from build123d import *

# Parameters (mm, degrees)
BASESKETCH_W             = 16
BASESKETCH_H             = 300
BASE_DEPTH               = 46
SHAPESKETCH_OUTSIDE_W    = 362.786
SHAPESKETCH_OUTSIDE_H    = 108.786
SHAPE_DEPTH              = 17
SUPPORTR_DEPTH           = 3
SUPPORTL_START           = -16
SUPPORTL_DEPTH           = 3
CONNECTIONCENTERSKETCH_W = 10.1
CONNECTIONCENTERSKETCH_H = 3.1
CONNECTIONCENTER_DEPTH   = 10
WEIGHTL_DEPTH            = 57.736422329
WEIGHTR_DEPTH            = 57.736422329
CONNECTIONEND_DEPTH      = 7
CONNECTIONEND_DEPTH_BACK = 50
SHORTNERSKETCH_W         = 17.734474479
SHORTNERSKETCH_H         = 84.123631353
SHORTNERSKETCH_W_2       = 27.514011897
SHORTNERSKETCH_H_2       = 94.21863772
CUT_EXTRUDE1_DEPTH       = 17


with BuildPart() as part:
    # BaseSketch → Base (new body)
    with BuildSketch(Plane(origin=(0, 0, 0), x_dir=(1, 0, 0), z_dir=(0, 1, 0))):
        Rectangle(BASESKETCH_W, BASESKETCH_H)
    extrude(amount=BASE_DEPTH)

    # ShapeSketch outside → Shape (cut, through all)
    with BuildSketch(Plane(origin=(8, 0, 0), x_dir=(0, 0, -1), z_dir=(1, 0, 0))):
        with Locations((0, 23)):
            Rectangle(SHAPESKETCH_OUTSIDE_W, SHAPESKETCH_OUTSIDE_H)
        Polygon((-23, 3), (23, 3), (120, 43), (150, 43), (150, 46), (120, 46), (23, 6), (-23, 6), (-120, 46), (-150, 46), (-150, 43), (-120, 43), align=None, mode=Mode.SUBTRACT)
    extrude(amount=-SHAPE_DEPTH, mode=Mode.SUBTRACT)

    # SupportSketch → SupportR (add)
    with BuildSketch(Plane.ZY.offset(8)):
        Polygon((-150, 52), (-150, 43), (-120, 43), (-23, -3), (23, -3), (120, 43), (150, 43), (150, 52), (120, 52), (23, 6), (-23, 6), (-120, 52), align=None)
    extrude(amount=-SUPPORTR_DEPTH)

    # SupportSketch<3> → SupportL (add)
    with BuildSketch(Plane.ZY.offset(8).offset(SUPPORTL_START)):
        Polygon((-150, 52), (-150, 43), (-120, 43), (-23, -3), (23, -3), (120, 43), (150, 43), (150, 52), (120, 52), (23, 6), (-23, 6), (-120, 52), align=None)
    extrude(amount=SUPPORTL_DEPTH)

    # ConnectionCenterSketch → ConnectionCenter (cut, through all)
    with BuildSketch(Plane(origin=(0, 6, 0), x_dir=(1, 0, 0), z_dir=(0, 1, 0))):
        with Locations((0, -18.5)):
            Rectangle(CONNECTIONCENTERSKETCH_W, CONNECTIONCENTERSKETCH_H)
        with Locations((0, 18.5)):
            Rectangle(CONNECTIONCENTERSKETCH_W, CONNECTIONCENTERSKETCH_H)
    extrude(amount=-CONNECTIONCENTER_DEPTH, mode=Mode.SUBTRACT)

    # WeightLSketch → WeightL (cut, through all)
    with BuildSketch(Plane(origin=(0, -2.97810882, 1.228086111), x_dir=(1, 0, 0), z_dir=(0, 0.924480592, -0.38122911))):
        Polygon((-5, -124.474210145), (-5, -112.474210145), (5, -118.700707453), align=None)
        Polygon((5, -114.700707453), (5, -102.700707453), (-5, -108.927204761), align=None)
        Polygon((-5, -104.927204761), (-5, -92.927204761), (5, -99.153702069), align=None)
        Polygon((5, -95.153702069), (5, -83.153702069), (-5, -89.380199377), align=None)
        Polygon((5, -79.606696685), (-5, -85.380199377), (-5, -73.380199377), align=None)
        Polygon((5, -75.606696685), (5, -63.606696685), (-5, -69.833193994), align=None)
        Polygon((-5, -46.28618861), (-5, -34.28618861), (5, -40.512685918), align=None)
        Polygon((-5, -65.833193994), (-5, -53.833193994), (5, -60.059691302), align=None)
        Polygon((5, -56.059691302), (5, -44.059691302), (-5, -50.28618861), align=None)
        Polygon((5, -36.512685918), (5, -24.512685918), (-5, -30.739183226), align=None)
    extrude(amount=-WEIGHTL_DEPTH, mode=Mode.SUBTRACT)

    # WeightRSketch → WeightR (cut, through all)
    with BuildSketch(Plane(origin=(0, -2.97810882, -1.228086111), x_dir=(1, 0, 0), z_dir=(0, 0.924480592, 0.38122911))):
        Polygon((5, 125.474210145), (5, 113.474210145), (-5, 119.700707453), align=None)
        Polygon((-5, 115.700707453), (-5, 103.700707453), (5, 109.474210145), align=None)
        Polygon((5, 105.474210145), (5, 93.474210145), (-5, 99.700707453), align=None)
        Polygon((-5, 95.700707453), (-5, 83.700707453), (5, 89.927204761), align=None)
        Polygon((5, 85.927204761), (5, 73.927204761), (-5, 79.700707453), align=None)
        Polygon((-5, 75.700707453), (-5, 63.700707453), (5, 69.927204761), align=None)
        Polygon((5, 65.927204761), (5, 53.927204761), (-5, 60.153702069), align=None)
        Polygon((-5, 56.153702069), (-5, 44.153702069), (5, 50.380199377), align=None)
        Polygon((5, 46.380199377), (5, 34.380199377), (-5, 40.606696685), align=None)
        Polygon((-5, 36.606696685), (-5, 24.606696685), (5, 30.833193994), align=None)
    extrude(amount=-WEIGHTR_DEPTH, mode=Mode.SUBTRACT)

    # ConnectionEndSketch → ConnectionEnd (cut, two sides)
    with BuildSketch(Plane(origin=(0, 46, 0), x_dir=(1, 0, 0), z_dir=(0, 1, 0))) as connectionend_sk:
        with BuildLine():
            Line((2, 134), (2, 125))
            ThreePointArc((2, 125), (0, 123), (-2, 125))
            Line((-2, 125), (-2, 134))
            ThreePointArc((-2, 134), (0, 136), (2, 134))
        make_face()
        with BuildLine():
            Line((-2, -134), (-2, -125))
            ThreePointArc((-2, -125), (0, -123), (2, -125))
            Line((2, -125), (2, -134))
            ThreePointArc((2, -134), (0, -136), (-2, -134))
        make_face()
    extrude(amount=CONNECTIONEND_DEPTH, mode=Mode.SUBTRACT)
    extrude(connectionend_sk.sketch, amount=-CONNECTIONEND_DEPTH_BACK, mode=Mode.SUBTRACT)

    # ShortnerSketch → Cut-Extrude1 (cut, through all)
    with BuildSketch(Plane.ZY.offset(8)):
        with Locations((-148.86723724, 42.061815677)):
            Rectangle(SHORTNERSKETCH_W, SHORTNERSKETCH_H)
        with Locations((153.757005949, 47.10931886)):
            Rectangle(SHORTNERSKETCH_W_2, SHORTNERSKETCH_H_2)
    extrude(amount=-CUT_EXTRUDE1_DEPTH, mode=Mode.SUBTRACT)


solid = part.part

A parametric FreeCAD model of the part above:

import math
import FreeCAD as App
import Part
import Sketcher
Q = App.Units.Quantity


def add_polygon(sketch, points):
    """Adds a closed chain of lines whose ends are joined by coincident constraints."""
    first, n = sketch.GeometryCount, len(points)
    for a, b in zip(points, points[1:] + points[:1]):
        sketch.addGeometry(Part.LineSegment(App.Vector(*a, 0), App.Vector(*b, 0)), False)
    for i in range(n):
        sketch.addConstraint(Sketcher.Constraint("Coincident", first + i, 2, first + (i + 1) % n, 1))

doc = App.newDocument("Part")
body = doc.addObject("PartDesign::Body", "Body")

# Sketch on XZ plane
sketch1 = body.newObject("Sketcher::SketchObject", "Sketch")
sketch1.AttachmentSupport = (doc.getObject("XZ_Plane"), [""])
sketch1.MapMode = "FlatFace"
add_polygon(sketch1, [(-8, -150), (-8, 150), (8, 150), (8, -150)])  # lines 0-3
sketch1.addConstraint([
    Sketcher.Constraint("Vertical", 0),
    Sketcher.Constraint("Horizontal", 1),
    Sketcher.Constraint("Vertical", 2),
    Sketcher.Constraint("Horizontal", 3),
    Sketcher.Constraint("Symmetric", 0, 2, 2, 2, -1, 1),
    Sketcher.Constraint("DistanceX", 1, 1, 1, 2, 16.0),
    Sketcher.Constraint("DistanceY", 0, 1, 0, 2, 300.0),
])
pad1 = body.newObject("PartDesign::Pad", "Pad")
pad1.Profile = sketch1
pad1.Length = 46
pad1.Reversed = True

# Sketch on YZ plane
sketch2 = body.newObject("Sketcher::SketchObject", "Sketch001")
sketch2.AttachmentSupport = (doc.getObject("YZ_Plane"), [""])
sketch2.MapMode = "FlatFace"
sketch2.AttachmentOffset = App.Placement(App.Vector(0, 0, 8), App.Rotation())
add_polygon(sketch2, [(77.4, 181.4), (-31.4, 181.4), (-31.4, -181.4), (77.4, -181.4)])  # lines 0-3
add_polygon(sketch2, [(3, -23), (3, 23), (43, 120), (43, 150), (46, 150), (46, 120), (6, 23), (6, -23), (46, -120), (46, -150), (43, -150), (43, -120)])  # lines 4-15
sketch2.addConstraint([
    Sketcher.Constraint("Horizontal", 0),
    Sketcher.Constraint("Vertical", 1),
    Sketcher.Constraint("Horizontal", 2),
    Sketcher.Constraint("Vertical", 3),
    Sketcher.Constraint("Vertical", 4),
    Sketcher.Constraint("Vertical", 6),
    Sketcher.Constraint("Horizontal", 7),
    Sketcher.Constraint("Vertical", 8),
    Sketcher.Constraint("Vertical", 10),
    Sketcher.Constraint("Vertical", 12),
    Sketcher.Constraint("Horizontal", 13),
    Sketcher.Constraint("Vertical", 14),
    Sketcher.Constraint("Symmetric", 8, 2, 11, 2, -1),
    Sketcher.Constraint("Symmetric", 6, 2, 13, 2, -1),
    Sketcher.Constraint("Parallel", 5, 9),
    Sketcher.Constraint("Parallel", 11, 15),
    Sketcher.Constraint("Horizontal", 5, 2, 8, 2),
    Sketcher.Constraint("Horizontal", 4, 2, 9, 2),
    Sketcher.Constraint("Horizontal", 11, 2, 14, 2),
    Sketcher.Constraint("Equal", 9, 11),
    Sketcher.Constraint("DistanceX", 7, 1, 7, 2, 3.0),
    Sketcher.Constraint("DistanceY", 4, 1, 4, 2, 46.0),
    Sketcher.Constraint("DistanceY", 6, 1, 6, 2, 30.0),
    Sketcher.Constraint("DistanceX", -1, 1, 4, 2, 3.0),
    Sketcher.Constraint("DistanceX", -1, 1, 5, 2, 43.0),
    Sketcher.Constraint("DistanceY", -1, 1, 5, 2, 120.0),
    Sketcher.Constraint("DistanceX", 0, 2, 0, 1, 108.786),
    Sketcher.Constraint("DistanceY", 1, 2, 1, 1, 362.786),
    Sketcher.Constraint("DistanceX", 0, 2, -1, 1, 31.393),
    Sketcher.Constraint("DistanceY", -1, 1, 0, 2, 181.393),
])
pocket1 = body.newObject("PartDesign::Pocket", "Pocket")
pocket1.Profile = sketch2
pocket1.Type = "ThroughAll"

# Sketch on YZ plane
sketch3 = body.newObject("Sketcher::SketchObject", "Sketch002")
sketch3.AttachmentSupport = (doc.getObject("YZ_Plane"), [""])
sketch3.MapMode = "FlatFace"
sketch3.AttachmentOffset = App.Placement(App.Vector(0, 0, -8), App.Rotation())
add_polygon(sketch3, [(52, -150), (43, -150), (43, -120), (-3, -23), (-3, 23), (43, 120), (43, 150), (52, 150), (52, 120), (6, 23), (6, -23), (52, -120)])  # lines 0-11
sketch3.addConstraint([
    Sketcher.Constraint("Horizontal", 0),
    Sketcher.Constraint("Vertical", 1),
    Sketcher.Constraint("Vertical", 3),
    Sketcher.Constraint("Vertical", 5),
    Sketcher.Constraint("Horizontal", 6),
    Sketcher.Constraint("Vertical", 7),
    Sketcher.Constraint("Vertical", 9),
    Sketcher.Constraint("Vertical", 11),
    Sketcher.Constraint("Symmetric", 1, 2, 4, 2, -1),
    Sketcher.Constraint("Symmetric", 7, 2, 10, 2, -1),
    Sketcher.Constraint("Parallel", 4, 8),
    Sketcher.Constraint("Parallel", 2, 10),
    Sketcher.Constraint("Horizontal", 4, 2, 7, 2),
    Sketcher.Constraint("Horizontal", 3, 2, 8, 2),
    Sketcher.Constraint("Equal", 1, 5),
    Sketcher.Constraint("Equal", 2, 4),
    Sketcher.Constraint("DistanceX", 0, 2, 0, 1, 9.0),
    Sketcher.Constraint("DistanceY", 1, 1, 1, 2, 30.0),
    Sketcher.Constraint("DistanceY", 3, 1, 3, 2, 46.0),
    Sketcher.Constraint("DistanceX", -1, 1, 0, 2, 43.0),
    Sketcher.Constraint("DistanceY", 0, 2, -1, 1, 150.0),
    Sketcher.Constraint("DistanceX", 2, 2, -1, 1, 3.0),
])
pad2 = body.newObject("PartDesign::Pad", "Pad001")
pad2.Profile = sketch3
pad2.Length = 3

# Sketch on YZ plane
sketch4 = body.newObject("Sketcher::SketchObject", "Sketch003")
sketch4.AttachmentSupport = (doc.getObject("YZ_Plane"), [""])
sketch4.MapMode = "FlatFace"
sketch4.AttachmentOffset = App.Placement(App.Vector(0, 0, 8), App.Rotation())
add_polygon(sketch4, [(52, -150), (43, -150), (43, -120), (-3, -23), (-3, 23), (43, 120), (43, 150), (52, 150), (52, 120), (6, 23), (6, -23), (52, -120)])  # lines 0-11
sketch4.addConstraint([
    Sketcher.Constraint("Horizontal", 0),
    Sketcher.Constraint("Vertical", 1),
    Sketcher.Constraint("Vertical", 3),
    Sketcher.Constraint("Vertical", 5),
    Sketcher.Constraint("Horizontal", 6),
    Sketcher.Constraint("Vertical", 7),
    Sketcher.Constraint("Vertical", 9),
    Sketcher.Constraint("Vertical", 11),
    Sketcher.Constraint("Symmetric", 1, 2, 4, 2, -1),
    Sketcher.Constraint("Symmetric", 7, 2, 10, 2, -1),
    Sketcher.Constraint("Parallel", 4, 8),
    Sketcher.Constraint("Parallel", 2, 10),
    Sketcher.Constraint("Horizontal", 4, 2, 7, 2),
    Sketcher.Constraint("Horizontal", 3, 2, 8, 2),
    Sketcher.Constraint("Equal", 1, 5),
    Sketcher.Constraint("Equal", 2, 4),
    Sketcher.Constraint("DistanceX", 0, 2, 0, 1, 9.0),
    Sketcher.Constraint("DistanceY", 1, 1, 1, 2, 30.0),
    Sketcher.Constraint("DistanceY", 3, 1, 3, 2, 46.0),
    Sketcher.Constraint("DistanceX", -1, 1, 0, 2, 43.0),
    Sketcher.Constraint("DistanceY", 0, 2, -1, 1, 150.0),
    Sketcher.Constraint("DistanceX", 2, 2, -1, 1, 3.0),
])
pad3 = body.newObject("PartDesign::Pad", "Pad002")
pad3.Profile = sketch4
pad3.Length = 3
pad3.Reversed = True

# Sketch on XZ plane
sketch5 = body.newObject("Sketcher::SketchObject", "Sketch004")
sketch5.AttachmentSupport = (doc.getObject("XZ_Plane"), [""])
sketch5.MapMode = "FlatFace"
sketch5.AttachmentOffset = App.Placement(App.Vector(0, 0, -6), App.Rotation())
add_polygon(sketch5, [(-5, 16.9), (-5, 20.1), (5, 20.1), (5, 16.9)])  # lines 0-3
add_polygon(sketch5, [(-5, -20.1), (-5, -16.9), (5, -16.9), (5, -20.1)])  # lines 4-7
sketch5.addConstraint([
    Sketcher.Constraint("Vertical", 0),
    Sketcher.Constraint("Horizontal", 1),
    Sketcher.Constraint("Vertical", 2),
    Sketcher.Constraint("Horizontal", 3),
    Sketcher.Constraint("Vertical", 4),
    Sketcher.Constraint("Horizontal", 5),
    Sketcher.Constraint("Vertical", 6),
    Sketcher.Constraint("Horizontal", 7),
    Sketcher.Constraint("Symmetric", 2, 2, 4, 2, -1, 1),
    Sketcher.Constraint("Symmetric", 0, 2, 6, 2, -1, 1),
    Sketcher.Constraint("Vertical", 3, 2, 4, 2),
    Sketcher.Constraint("DistanceX", 1, 1, 1, 2, 10.1),
    Sketcher.Constraint("DistanceY", 0, 1, 0, 2, 3.1),
    Sketcher.Constraint("DistanceY", 4, 2, 0, 2, 37.0),
])
pocket2 = body.newObject("PartDesign::Pocket", "Pocket001")
pocket2.Profile = sketch5
pocket2.Type = "ThroughAll"
pocket2.Reversed = True

# Sketch on an angled plane
sketch6 = body.newObject("Sketcher::SketchObject", "Sketch005")
sketch6.Placement = App.Placement(App.Vector(0, -2.978109, 1.228086), App.Rotation(App.Vector(1, 0, 0), App.Vector(0, -0.38122911, -0.924480592), App.Vector(0, 0.924480592, -0.38122911), "ZXY"))
add_polygon(sketch6, [(-5, -112), (-5, -124), (5, -119)])  # lines 0-2
add_polygon(sketch6, [(5, -115), (5, -103), (-5, -109)])  # lines 3-5
add_polygon(sketch6, [(-5, -93), (-5, -105), (5, -99)])  # lines 6-8
add_polygon(sketch6, [(5, -95), (5, -83), (-5, -89)])  # lines 9-11
add_polygon(sketch6, [(-5, -85), (5, -80), (-5, -73)])  # lines 12-14
add_polygon(sketch6, [(5, -76), (5, -64), (-5, -70)])  # lines 15-17
add_polygon(sketch6, [(-5, -34), (-5, -46), (5, -41)])  # lines 18-20
add_polygon(sketch6, [(-5, -54), (-5, -66), (5, -60)])  # lines 21-23
add_polygon(sketch6, [(5, -56), (5, -44), (-5, -50)])  # lines 24-26
add_polygon(sketch6, [(5, -37), (5, -25), (-5, -31)])  # lines 27-29
sketch6.addConstraint([
    Sketcher.Constraint("Vertical", 0),
    Sketcher.Constraint("Vertical", 3),
    Sketcher.Constraint("Vertical", 6),
    Sketcher.Constraint("Vertical", 9),
    Sketcher.Constraint("Vertical", 14),
    Sketcher.Constraint("Vertical", 15),
    Sketcher.Constraint("Vertical", 18),
    Sketcher.Constraint("Vertical", 21),
    Sketcher.Constraint("Vertical", 24),
    Sketcher.Constraint("Vertical", 27),
    Sketcher.Constraint("Parallel", 1, 7),
    Sketcher.Constraint("Parallel", 2, 8),
    Sketcher.Constraint("Parallel", 4, 10),
    Sketcher.Constraint("Parallel", 5, 11),
    Sketcher.Constraint("Parallel", 7, 12),
    Sketcher.Constraint("Parallel", 8, 13),
    Sketcher.Constraint("Parallel", 10, 16),
    Sketcher.Constraint("Parallel", 11, 17),
    Sketcher.Constraint("Parallel", 12, 19),
    Sketcher.Constraint("Parallel", 13, 20),
    Sketcher.Constraint("Parallel", 19, 22),
    Sketcher.Constraint("Parallel", 20, 23),
    Sketcher.Constraint("Parallel", 16, 25),
    Sketcher.Constraint("Parallel", 17, 26),
    Sketcher.Constraint("Parallel", 25, 28),
    Sketcher.Constraint("Parallel", 26, 29),
    Sketcher.Constraint("Vertical", 1, 2, 3, 2),
    Sketcher.Constraint("Vertical", 2, 2, 4, 2),
    Sketcher.Constraint("Vertical", 4, 2, 6, 2),
    Sketcher.Constraint("Vertical", 5, 2, 7, 2),
    Sketcher.Constraint("Vertical", 7, 2, 9, 2),
    Sketcher.Constraint("Vertical", 8, 2, 10, 2),
    Sketcher.Constraint("Vertical", 11, 2, 12, 2),
    Sketcher.Constraint("Vertical", 10, 2, 13, 2),
    Sketcher.Constraint("Vertical", 12, 2, 15, 2),
    Sketcher.Constraint("Vertical", 14, 2, 16, 2),
    Sketcher.Constraint("Vertical", 16, 2, 18, 2),
    Sketcher.Constraint("Vertical", 17, 2, 19, 2),
    Sketcher.Constraint("Vertical", 20, 2, 21, 2),
    Sketcher.Constraint("Vertical", 19, 2, 22, 2),
    Sketcher.Constraint("Vertical", 22, 2, 24, 2),
    Sketcher.Constraint("Vertical", 23, 2, 25, 2),
    Sketcher.Constraint("Vertical", 26, 2, 27, 2),
    Sketcher.Constraint("Vertical", 25, 2, 28, 2),
    Sketcher.Constraint("Equal", 0, 3),
    Sketcher.Constraint("Equal", 2, 4),
    Sketcher.Constraint("DistanceY", 0, 2, 0, 1, 12.0),
    Sketcher.Constraint("Angle", 1, Q("30 deg")),
    Sketcher.Constraint("DistanceX", 0, 2, -1, 1, 5.0),
    Sketcher.Constraint("DistanceX", -1, 1, 1, 2, 5.0),
    Sketcher.Constraint("DistanceY", 1, 2, 3, 2, 16.0),
    Sketcher.Constraint("DistanceY", 4, 2, 6, 2, 4.0),
    Sketcher.Constraint("DistanceY", 7, 2, 9, 2, 16.0),
    Sketcher.Constraint("DistanceY", 10, 2, 13, 2, 16.0),
    Sketcher.Constraint("DistanceY", 12, 2, 15, 2, 16.0),
    Sketcher.Constraint("DistanceY", 16, 2, 21, 2, 4.0),
    Sketcher.Constraint("DistanceY", 22, 2, 24, 2, 16.0),
    Sketcher.Constraint("DistanceY", 25, 2, 18, 2, 4.0),
    Sketcher.Constraint("DistanceY", 19, 2, 27, 2, 16.0),
    Sketcher.Constraint("DistanceY", 7, 2, -1, 1, 99.153702),
])
pocket3 = body.newObject("PartDesign::Pocket", "Pocket002")
pocket3.Profile = sketch6
pocket3.Type = "ThroughAll"

# Sketch on an angled plane
sketch7 = body.newObject("Sketcher::SketchObject", "Sketch006")
sketch7.Placement = App.Placement(App.Vector(0, -2.978109, -1.228086), App.Rotation(App.Vector(1, 0, 0), App.Vector(0, 0.38122911, -0.924480592), App.Vector(0, 0.924480592, 0.38122911), "ZXY"))
add_polygon(sketch7, [(5, 113), (5, 125), (-5, 120)])  # lines 0-2
add_polygon(sketch7, [(-5, 116), (-5, 104), (5, 109)])  # lines 3-5
add_polygon(sketch7, [(5, 93), (5, 105), (-5, 100)])  # lines 6-8
add_polygon(sketch7, [(-5, 96), (-5, 84), (5, 90)])  # lines 9-11
add_polygon(sketch7, [(5, 74), (5, 86), (-5, 80)])  # lines 12-14
add_polygon(sketch7, [(-5, 76), (-5, 64), (5, 70)])  # lines 15-17
add_polygon(sketch7, [(5, 54), (5, 66), (-5, 60)])  # lines 18-20
add_polygon(sketch7, [(-5, 56), (-5, 44), (5, 50)])  # lines 21-23
add_polygon(sketch7, [(5, 34), (5, 46), (-5, 41)])  # lines 24-26
add_polygon(sketch7, [(-5, 37), (-5, 25), (5, 31)])  # lines 27-29
sketch7.addConstraint([
    Sketcher.Constraint("Vertical", 0),
    Sketcher.Constraint("Vertical", 3),
    Sketcher.Constraint("Vertical", 6),
    Sketcher.Constraint("Vertical", 9),
    Sketcher.Constraint("Vertical", 12),
    Sketcher.Constraint("Vertical", 15),
    Sketcher.Constraint("Vertical", 18),
    Sketcher.Constraint("Vertical", 21),
    Sketcher.Constraint("Vertical", 24),
    Sketcher.Constraint("Vertical", 27),
    Sketcher.Constraint("Parallel", 1, 4),
    Sketcher.Constraint("Parallel", 2, 5),
    Sketcher.Constraint("Parallel", 4, 7),
    Sketcher.Constraint("Parallel", 5, 8),
    Sketcher.Constraint("Parallel", 10, 13),
    Sketcher.Constraint("Parallel", 11, 14),
    Sketcher.Constraint("Parallel", 13, 16),
    Sketcher.Constraint("Parallel", 14, 17),
    Sketcher.Constraint("Parallel", 7, 19),
    Sketcher.Constraint("Parallel", 8, 20),
    Sketcher.Constraint("Parallel", 16, 22),
    Sketcher.Constraint("Parallel", 17, 23),
    Sketcher.Constraint("Parallel", 19, 25),
    Sketcher.Constraint("Parallel", 20, 26),
    Sketcher.Constraint("Parallel", 22, 28),
    Sketcher.Constraint("Parallel", 23, 29),
    Sketcher.Constraint("Vertical", 1, 2, 3, 2),
    Sketcher.Constraint("Vertical", 2, 2, 4, 2),
    Sketcher.Constraint("Vertical", 4, 2, 6, 2),
    Sketcher.Constraint("Vertical", 5, 2, 7, 2),
    Sketcher.Constraint("Vertical", 7, 2, 9, 2),
    Sketcher.Constraint("Vertical", 8, 2, 10, 2),
    Sketcher.Constraint("Vertical", 10, 2, 12, 2),
    Sketcher.Constraint("Vertical", 11, 2, 13, 2),
    Sketcher.Constraint("Vertical", 13, 2, 15, 2),
    Sketcher.Constraint("Vertical", 14, 2, 16, 2),
    Sketcher.Constraint("Vertical", 16, 2, 18, 2),
    Sketcher.Constraint("Vertical", 17, 2, 19, 2),
    Sketcher.Constraint("Vertical", 19, 2, 21, 2),
    Sketcher.Constraint("Vertical", 20, 2, 22, 2),
    Sketcher.Constraint("Vertical", 22, 2, 24, 2),
    Sketcher.Constraint("Vertical", 23, 2, 25, 2),
    Sketcher.Constraint("Vertical", 25, 2, 27, 2),
    Sketcher.Constraint("Vertical", 26, 2, 28, 2),
    Sketcher.Constraint("Equal", 6, 9),
    Sketcher.Constraint("Equal", 8, 10),
    Sketcher.Constraint("DistanceY", 0, 1, 0, 2, 12.0),
    Sketcher.Constraint("Angle", 1, Q("-150 deg")),
    Sketcher.Constraint("DistanceX", -1, 1, 0, 2, 5.0),
    Sketcher.Constraint("DistanceX", 1, 2, -1, 1, 5.0),
    Sketcher.Constraint("DistanceY", 3, 2, 1, 2, 16.0),
    Sketcher.Constraint("DistanceY", 6, 2, 4, 2, 4.0),
    Sketcher.Constraint("DistanceY", 9, 2, 7, 2, 16.0),
    Sketcher.Constraint("DistanceY", 12, 2, 10, 2, 4.0),
    Sketcher.Constraint("DistanceY", 15, 2, 13, 2, 16.0),
    Sketcher.Constraint("DistanceY", 18, 2, 16, 2, 4.0),
    Sketcher.Constraint("DistanceY", 21, 2, 19, 2, 16.0),
    Sketcher.Constraint("DistanceY", 24, 2, 22, 2, 4.0),
    Sketcher.Constraint("DistanceY", 27, 2, 25, 2, 16.0),
    Sketcher.Constraint("DistanceY", -1, 1, 22, 2, 50.380199),
])
pocket4 = body.newObject("PartDesign::Pocket", "Pocket003")
pocket4.Profile = sketch7
pocket4.Type = "ThroughAll"

# Sketch on XZ plane
sketch8 = body.newObject("Sketcher::SketchObject", "Sketch007")
sketch8.AttachmentSupport = (doc.getObject("XZ_Plane"), [""])
sketch8.MapMode = "FlatFace"
sketch8.AttachmentOffset = App.Placement(App.Vector(0, 0, -46), App.Rotation())
sketch8.addGeometry([
    Part.LineSegment(App.Vector(2, -125, 0), App.Vector(2, -134, 0)),  # 0
    Part.ArcOfCircle(Part.Circle(App.Vector(0, -134, 0), App.Vector(0, 0, 1), 2), math.radians(180), math.radians(360)),  # 1
    Part.LineSegment(App.Vector(-2, -134, 0), App.Vector(-2, -125, 0)),  # 2
    Part.ArcOfCircle(Part.Circle(App.Vector(0, -125, 0), App.Vector(0, 0, 1), 2), math.radians(0), math.radians(180)),  # 3
    Part.LineSegment(App.Vector(-2, 125, 0), App.Vector(-2, 134, 0)),  # 4
    Part.ArcOfCircle(Part.Circle(App.Vector(0, 134, 0), App.Vector(0, 0, 1), 2), math.radians(0), math.radians(180)),  # 5
    Part.LineSegment(App.Vector(2, 134, 0), App.Vector(2, 125, 0)),  # 6
    Part.ArcOfCircle(Part.Circle(App.Vector(0, 125, 0), App.Vector(0, 0, 1), 2), math.radians(180), math.radians(360)),  # 7
], False)
sketch8.addConstraint([
    Sketcher.Constraint("Tangent", 0, 2, 1, 2),
    Sketcher.Constraint("Tangent", 1, 1, 2, 1),
    Sketcher.Constraint("Tangent", 2, 2, 3, 2),
    Sketcher.Constraint("Tangent", 3, 1, 0, 1),
    Sketcher.Constraint("Tangent", 4, 2, 5, 2),
    Sketcher.Constraint("Tangent", 5, 1, 6, 1),
    Sketcher.Constraint("Tangent", 6, 2, 7, 2),
    Sketcher.Constraint("Tangent", 7, 1, 4, 1),
    Sketcher.Constraint("Vertical", 0),
    Sketcher.Constraint("Vertical", 2),
    Sketcher.Constraint("Vertical", 4),
    Sketcher.Constraint("Vertical", 6),
    Sketcher.Constraint("Equal", 3, 5),
    Sketcher.Constraint("Symmetric", 1, 3, 5, 3, -1, 1),
    Sketcher.Constraint("Symmetric", 3, 3, 7, 3, -1),
    Sketcher.Constraint("Radius", 1, 2.0),
    Sketcher.Constraint("DistanceY", 0, 2, 0, 1, 9.0),
    Sketcher.Constraint("DistanceY", 1, 3, -1, 1, 134.0),
])
pocket5 = body.newObject("PartDesign::Pocket", "Pocket004")
pocket5.Profile = sketch8
pocket5.Type = "ThroughAll"
pocket5.Midplane = True

# Sketch on YZ plane
sketch9 = body.newObject("Sketcher::SketchObject", "Sketch008")
sketch9.AttachmentSupport = (doc.getObject("YZ_Plane"), [""])
sketch9.MapMode = "FlatFace"
sketch9.AttachmentOffset = App.Placement(App.Vector(0, 0, -8), App.Rotation())
add_polygon(sketch9, [(84, -158), (0, -158), (0, -140), (84, -140)])  # lines 0-3
add_polygon(sketch9, [(94, 140), (0, 140), (0, 168), (94, 168)])  # lines 4-7
sketch9.addConstraint([
    Sketcher.Constraint("Horizontal", 0),
    Sketcher.Constraint("Vertical", 1),
    Sketcher.Constraint("Horizontal", 2),
    Sketcher.Constraint("Vertical", 3),
    Sketcher.Constraint("Horizontal", 4),
    Sketcher.Constraint("Vertical", 5),
    Sketcher.Constraint("Horizontal", 6),
    Sketcher.Constraint("Vertical", 7),
    Sketcher.Constraint("Symmetric", 1, 2, 4, 2, -1, 1),
    Sketcher.Constraint("PointOnObject", 0, 2, -2),
    Sketcher.Constraint("DistanceY", 1, 2, -1, 1, 140.0),
    Sketcher.Constraint("DistanceX", 0, 2, 0, 1, 84.123631),
    Sketcher.Constraint("DistanceY", 5, 1, 5, 2, 27.514012),
    Sketcher.Constraint("DistanceX", 4, 2, 4, 1, 94.218638),
    Sketcher.Constraint("DistanceY", 1, 1, 1, 2, 17.734474),
])
pocket6 = body.newObject("PartDesign::Pocket", "Pocket005")
pocket6.Profile = sketch9
pocket6.Type = "ThroughAll"
pocket6.Reversed = True

doc.recompute()
